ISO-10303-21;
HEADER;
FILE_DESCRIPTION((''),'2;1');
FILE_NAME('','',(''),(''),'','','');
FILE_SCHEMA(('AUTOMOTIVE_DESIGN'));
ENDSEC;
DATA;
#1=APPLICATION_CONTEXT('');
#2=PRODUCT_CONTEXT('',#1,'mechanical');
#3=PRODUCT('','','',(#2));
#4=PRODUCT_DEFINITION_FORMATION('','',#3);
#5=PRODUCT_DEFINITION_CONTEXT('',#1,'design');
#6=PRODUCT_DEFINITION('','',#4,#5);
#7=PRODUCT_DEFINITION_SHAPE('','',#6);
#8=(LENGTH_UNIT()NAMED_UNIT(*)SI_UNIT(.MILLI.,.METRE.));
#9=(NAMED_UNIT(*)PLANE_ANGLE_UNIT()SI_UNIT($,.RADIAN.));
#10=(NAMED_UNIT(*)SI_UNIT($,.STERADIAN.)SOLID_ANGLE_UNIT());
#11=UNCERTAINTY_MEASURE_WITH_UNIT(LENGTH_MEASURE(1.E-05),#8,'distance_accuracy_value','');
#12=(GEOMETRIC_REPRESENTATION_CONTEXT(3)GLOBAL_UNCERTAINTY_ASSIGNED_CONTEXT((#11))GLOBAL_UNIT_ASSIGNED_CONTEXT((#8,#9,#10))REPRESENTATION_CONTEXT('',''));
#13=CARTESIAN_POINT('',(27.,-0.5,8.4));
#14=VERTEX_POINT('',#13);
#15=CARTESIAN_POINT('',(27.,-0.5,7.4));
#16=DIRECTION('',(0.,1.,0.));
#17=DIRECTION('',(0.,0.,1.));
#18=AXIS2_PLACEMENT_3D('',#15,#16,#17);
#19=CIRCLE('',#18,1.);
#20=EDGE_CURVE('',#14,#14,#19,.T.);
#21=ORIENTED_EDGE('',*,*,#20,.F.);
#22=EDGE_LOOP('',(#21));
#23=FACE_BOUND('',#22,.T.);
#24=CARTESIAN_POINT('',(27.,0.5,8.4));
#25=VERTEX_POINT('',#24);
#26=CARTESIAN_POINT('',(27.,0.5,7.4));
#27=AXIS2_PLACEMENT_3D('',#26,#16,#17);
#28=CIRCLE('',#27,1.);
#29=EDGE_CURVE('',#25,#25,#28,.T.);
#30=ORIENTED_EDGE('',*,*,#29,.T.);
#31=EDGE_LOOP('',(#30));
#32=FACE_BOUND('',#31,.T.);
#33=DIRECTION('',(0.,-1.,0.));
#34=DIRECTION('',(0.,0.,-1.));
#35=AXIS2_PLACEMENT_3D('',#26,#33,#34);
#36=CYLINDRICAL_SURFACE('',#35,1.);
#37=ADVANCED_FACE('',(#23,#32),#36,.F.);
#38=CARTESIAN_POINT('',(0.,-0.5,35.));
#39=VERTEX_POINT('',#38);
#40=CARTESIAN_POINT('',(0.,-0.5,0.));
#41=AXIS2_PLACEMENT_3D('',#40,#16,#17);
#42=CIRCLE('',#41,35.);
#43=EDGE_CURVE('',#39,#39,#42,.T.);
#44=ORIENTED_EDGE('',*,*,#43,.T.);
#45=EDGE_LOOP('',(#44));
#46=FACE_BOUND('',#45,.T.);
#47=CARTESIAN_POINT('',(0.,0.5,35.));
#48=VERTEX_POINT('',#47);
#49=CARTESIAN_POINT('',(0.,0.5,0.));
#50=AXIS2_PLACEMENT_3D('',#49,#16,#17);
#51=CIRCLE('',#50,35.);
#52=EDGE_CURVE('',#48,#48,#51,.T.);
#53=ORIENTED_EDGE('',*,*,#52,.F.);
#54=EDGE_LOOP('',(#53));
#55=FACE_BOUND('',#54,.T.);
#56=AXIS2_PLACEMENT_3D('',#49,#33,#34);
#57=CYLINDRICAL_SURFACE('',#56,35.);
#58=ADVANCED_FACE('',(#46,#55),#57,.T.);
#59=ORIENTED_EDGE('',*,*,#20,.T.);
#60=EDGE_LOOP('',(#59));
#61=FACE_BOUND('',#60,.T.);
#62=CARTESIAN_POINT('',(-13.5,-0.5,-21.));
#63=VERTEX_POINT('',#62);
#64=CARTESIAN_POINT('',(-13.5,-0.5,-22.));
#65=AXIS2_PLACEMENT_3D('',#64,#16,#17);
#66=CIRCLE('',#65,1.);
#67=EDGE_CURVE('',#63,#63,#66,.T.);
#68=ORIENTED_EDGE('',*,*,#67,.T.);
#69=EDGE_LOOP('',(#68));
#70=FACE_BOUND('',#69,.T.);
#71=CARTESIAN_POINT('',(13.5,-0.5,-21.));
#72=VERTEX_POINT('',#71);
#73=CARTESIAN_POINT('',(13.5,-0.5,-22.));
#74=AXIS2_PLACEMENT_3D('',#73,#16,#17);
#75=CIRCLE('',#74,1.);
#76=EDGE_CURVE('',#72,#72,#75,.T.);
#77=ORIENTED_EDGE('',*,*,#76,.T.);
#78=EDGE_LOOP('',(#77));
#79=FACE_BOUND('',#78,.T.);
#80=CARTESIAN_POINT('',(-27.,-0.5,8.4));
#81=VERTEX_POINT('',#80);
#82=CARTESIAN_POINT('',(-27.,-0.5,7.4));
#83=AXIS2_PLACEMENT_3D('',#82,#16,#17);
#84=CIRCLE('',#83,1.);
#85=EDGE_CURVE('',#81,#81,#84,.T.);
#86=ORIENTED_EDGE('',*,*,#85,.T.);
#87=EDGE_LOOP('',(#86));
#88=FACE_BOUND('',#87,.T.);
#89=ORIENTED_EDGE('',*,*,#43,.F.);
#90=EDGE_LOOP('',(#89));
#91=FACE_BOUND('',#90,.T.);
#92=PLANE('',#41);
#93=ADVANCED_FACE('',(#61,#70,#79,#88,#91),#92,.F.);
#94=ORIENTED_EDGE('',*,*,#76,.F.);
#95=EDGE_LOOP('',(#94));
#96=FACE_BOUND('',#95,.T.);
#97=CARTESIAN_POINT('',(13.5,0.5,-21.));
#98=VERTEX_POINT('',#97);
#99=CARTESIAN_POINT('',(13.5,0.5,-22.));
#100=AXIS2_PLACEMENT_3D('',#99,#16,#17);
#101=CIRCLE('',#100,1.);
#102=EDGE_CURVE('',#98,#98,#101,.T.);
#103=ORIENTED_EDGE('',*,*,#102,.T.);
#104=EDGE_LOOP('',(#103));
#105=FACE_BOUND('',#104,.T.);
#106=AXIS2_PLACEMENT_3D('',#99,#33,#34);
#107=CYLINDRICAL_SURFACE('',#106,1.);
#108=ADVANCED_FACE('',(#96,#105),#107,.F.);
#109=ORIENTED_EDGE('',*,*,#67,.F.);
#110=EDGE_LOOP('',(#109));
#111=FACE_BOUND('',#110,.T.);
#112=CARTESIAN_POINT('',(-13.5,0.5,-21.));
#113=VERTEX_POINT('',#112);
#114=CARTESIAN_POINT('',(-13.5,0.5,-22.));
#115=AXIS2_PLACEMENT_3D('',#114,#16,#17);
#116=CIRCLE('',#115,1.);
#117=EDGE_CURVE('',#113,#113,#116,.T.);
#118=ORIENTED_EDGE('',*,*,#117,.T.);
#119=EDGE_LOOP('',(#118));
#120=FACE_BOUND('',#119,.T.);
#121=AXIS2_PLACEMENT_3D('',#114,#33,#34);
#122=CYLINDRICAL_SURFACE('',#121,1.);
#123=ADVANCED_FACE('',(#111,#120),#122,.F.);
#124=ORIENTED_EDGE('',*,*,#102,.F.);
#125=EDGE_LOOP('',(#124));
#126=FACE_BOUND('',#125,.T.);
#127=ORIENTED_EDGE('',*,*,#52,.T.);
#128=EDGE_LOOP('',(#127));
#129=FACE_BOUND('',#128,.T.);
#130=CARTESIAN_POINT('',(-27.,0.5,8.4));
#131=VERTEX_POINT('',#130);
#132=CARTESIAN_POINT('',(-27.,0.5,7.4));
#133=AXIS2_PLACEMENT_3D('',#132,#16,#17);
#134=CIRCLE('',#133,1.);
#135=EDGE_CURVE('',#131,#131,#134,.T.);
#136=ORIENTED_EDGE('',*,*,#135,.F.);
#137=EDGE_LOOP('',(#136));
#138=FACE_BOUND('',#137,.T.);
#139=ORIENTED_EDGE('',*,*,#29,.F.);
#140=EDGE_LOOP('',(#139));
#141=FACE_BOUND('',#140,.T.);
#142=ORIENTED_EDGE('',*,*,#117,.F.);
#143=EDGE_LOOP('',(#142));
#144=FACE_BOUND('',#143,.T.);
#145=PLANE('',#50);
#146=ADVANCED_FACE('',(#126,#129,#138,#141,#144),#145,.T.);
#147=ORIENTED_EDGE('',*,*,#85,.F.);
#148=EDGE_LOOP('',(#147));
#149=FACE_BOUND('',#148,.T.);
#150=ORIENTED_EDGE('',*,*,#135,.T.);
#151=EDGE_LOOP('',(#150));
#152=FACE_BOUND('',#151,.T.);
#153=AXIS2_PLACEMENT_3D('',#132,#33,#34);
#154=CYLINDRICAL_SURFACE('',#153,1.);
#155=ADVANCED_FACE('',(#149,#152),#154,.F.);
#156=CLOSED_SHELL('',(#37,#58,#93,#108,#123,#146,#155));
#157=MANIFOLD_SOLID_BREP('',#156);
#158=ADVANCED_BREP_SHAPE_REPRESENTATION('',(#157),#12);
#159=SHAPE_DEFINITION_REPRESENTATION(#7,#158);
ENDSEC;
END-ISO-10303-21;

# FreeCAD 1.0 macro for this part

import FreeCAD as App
import Part
import Sketcher
from FreeCAD import Vector
Q = App.Units.Quantity

doc = App.newDocument("Part")
body = doc.addObject("PartDesign::Body", "Body")

# Sketch on XZ plane
sketch1 = body.newObject("Sketcher::SketchObject", "Sketch")
sketch1.AttachmentSupport = (doc.getObject("XZ_Plane"), [""])
sketch1.MapMode = "FlatFace"
sketch1.addGeometry([
    Part.Circle(Vector(0, 0, 0), Vector(0, 0, 1), 35),  # 0
    Part.Circle(Vector(-13.5, -22, 0), Vector(0, 0, 1), 1),  # 1
    Part.Circle(Vector(-27, 7.4, 0), Vector(0, 0, 1), 1),  # 2
    Part.Circle(Vector(13.5, -22, 0), Vector(0, 0, 1), 1),  # 3
    Part.Circle(Vector(27, 7.4, 0), Vector(0, 0, 1), 1),  # 4
], False)
sketch1.addConstraint([
    Sketcher.Constraint("Coincident", 0, 3, -1, 1),
    Sketcher.Constraint("Equal", 1, 2),
    Sketcher.Constraint("Equal", 2, 3),
    Sketcher.Constraint("Equal", 3, 4),
    Sketcher.Constraint("Symmetric", 1, 3, 3, 3, -2),
    Sketcher.Constraint("Symmetric", 2, 3, 4, 3, -2),
    Sketcher.Constraint("Diameter", 0, Q("70 mm")),
    Sketcher.Constraint("Diameter", 1, Q("2 mm")),
    Sketcher.Constraint("DistanceY", 1, 3, -1, 1, Q("22 mm")),
    Sketcher.Constraint("DistanceX", 2, 3, -1, 1, Q("27 mm")),
    Sketcher.Constraint("DistanceX", 1, 3, 3, 3, Q("27 mm")),
    Sketcher.Constraint("DistanceY", -1, 1, 2, 3, Q("7.4 mm")),
])
pad1 = body.newObject("PartDesign::Pad", "Pad")
pad1.Profile = sketch1
pad1.Length = 1
pad1.Midplane = True

doc.recompute()
